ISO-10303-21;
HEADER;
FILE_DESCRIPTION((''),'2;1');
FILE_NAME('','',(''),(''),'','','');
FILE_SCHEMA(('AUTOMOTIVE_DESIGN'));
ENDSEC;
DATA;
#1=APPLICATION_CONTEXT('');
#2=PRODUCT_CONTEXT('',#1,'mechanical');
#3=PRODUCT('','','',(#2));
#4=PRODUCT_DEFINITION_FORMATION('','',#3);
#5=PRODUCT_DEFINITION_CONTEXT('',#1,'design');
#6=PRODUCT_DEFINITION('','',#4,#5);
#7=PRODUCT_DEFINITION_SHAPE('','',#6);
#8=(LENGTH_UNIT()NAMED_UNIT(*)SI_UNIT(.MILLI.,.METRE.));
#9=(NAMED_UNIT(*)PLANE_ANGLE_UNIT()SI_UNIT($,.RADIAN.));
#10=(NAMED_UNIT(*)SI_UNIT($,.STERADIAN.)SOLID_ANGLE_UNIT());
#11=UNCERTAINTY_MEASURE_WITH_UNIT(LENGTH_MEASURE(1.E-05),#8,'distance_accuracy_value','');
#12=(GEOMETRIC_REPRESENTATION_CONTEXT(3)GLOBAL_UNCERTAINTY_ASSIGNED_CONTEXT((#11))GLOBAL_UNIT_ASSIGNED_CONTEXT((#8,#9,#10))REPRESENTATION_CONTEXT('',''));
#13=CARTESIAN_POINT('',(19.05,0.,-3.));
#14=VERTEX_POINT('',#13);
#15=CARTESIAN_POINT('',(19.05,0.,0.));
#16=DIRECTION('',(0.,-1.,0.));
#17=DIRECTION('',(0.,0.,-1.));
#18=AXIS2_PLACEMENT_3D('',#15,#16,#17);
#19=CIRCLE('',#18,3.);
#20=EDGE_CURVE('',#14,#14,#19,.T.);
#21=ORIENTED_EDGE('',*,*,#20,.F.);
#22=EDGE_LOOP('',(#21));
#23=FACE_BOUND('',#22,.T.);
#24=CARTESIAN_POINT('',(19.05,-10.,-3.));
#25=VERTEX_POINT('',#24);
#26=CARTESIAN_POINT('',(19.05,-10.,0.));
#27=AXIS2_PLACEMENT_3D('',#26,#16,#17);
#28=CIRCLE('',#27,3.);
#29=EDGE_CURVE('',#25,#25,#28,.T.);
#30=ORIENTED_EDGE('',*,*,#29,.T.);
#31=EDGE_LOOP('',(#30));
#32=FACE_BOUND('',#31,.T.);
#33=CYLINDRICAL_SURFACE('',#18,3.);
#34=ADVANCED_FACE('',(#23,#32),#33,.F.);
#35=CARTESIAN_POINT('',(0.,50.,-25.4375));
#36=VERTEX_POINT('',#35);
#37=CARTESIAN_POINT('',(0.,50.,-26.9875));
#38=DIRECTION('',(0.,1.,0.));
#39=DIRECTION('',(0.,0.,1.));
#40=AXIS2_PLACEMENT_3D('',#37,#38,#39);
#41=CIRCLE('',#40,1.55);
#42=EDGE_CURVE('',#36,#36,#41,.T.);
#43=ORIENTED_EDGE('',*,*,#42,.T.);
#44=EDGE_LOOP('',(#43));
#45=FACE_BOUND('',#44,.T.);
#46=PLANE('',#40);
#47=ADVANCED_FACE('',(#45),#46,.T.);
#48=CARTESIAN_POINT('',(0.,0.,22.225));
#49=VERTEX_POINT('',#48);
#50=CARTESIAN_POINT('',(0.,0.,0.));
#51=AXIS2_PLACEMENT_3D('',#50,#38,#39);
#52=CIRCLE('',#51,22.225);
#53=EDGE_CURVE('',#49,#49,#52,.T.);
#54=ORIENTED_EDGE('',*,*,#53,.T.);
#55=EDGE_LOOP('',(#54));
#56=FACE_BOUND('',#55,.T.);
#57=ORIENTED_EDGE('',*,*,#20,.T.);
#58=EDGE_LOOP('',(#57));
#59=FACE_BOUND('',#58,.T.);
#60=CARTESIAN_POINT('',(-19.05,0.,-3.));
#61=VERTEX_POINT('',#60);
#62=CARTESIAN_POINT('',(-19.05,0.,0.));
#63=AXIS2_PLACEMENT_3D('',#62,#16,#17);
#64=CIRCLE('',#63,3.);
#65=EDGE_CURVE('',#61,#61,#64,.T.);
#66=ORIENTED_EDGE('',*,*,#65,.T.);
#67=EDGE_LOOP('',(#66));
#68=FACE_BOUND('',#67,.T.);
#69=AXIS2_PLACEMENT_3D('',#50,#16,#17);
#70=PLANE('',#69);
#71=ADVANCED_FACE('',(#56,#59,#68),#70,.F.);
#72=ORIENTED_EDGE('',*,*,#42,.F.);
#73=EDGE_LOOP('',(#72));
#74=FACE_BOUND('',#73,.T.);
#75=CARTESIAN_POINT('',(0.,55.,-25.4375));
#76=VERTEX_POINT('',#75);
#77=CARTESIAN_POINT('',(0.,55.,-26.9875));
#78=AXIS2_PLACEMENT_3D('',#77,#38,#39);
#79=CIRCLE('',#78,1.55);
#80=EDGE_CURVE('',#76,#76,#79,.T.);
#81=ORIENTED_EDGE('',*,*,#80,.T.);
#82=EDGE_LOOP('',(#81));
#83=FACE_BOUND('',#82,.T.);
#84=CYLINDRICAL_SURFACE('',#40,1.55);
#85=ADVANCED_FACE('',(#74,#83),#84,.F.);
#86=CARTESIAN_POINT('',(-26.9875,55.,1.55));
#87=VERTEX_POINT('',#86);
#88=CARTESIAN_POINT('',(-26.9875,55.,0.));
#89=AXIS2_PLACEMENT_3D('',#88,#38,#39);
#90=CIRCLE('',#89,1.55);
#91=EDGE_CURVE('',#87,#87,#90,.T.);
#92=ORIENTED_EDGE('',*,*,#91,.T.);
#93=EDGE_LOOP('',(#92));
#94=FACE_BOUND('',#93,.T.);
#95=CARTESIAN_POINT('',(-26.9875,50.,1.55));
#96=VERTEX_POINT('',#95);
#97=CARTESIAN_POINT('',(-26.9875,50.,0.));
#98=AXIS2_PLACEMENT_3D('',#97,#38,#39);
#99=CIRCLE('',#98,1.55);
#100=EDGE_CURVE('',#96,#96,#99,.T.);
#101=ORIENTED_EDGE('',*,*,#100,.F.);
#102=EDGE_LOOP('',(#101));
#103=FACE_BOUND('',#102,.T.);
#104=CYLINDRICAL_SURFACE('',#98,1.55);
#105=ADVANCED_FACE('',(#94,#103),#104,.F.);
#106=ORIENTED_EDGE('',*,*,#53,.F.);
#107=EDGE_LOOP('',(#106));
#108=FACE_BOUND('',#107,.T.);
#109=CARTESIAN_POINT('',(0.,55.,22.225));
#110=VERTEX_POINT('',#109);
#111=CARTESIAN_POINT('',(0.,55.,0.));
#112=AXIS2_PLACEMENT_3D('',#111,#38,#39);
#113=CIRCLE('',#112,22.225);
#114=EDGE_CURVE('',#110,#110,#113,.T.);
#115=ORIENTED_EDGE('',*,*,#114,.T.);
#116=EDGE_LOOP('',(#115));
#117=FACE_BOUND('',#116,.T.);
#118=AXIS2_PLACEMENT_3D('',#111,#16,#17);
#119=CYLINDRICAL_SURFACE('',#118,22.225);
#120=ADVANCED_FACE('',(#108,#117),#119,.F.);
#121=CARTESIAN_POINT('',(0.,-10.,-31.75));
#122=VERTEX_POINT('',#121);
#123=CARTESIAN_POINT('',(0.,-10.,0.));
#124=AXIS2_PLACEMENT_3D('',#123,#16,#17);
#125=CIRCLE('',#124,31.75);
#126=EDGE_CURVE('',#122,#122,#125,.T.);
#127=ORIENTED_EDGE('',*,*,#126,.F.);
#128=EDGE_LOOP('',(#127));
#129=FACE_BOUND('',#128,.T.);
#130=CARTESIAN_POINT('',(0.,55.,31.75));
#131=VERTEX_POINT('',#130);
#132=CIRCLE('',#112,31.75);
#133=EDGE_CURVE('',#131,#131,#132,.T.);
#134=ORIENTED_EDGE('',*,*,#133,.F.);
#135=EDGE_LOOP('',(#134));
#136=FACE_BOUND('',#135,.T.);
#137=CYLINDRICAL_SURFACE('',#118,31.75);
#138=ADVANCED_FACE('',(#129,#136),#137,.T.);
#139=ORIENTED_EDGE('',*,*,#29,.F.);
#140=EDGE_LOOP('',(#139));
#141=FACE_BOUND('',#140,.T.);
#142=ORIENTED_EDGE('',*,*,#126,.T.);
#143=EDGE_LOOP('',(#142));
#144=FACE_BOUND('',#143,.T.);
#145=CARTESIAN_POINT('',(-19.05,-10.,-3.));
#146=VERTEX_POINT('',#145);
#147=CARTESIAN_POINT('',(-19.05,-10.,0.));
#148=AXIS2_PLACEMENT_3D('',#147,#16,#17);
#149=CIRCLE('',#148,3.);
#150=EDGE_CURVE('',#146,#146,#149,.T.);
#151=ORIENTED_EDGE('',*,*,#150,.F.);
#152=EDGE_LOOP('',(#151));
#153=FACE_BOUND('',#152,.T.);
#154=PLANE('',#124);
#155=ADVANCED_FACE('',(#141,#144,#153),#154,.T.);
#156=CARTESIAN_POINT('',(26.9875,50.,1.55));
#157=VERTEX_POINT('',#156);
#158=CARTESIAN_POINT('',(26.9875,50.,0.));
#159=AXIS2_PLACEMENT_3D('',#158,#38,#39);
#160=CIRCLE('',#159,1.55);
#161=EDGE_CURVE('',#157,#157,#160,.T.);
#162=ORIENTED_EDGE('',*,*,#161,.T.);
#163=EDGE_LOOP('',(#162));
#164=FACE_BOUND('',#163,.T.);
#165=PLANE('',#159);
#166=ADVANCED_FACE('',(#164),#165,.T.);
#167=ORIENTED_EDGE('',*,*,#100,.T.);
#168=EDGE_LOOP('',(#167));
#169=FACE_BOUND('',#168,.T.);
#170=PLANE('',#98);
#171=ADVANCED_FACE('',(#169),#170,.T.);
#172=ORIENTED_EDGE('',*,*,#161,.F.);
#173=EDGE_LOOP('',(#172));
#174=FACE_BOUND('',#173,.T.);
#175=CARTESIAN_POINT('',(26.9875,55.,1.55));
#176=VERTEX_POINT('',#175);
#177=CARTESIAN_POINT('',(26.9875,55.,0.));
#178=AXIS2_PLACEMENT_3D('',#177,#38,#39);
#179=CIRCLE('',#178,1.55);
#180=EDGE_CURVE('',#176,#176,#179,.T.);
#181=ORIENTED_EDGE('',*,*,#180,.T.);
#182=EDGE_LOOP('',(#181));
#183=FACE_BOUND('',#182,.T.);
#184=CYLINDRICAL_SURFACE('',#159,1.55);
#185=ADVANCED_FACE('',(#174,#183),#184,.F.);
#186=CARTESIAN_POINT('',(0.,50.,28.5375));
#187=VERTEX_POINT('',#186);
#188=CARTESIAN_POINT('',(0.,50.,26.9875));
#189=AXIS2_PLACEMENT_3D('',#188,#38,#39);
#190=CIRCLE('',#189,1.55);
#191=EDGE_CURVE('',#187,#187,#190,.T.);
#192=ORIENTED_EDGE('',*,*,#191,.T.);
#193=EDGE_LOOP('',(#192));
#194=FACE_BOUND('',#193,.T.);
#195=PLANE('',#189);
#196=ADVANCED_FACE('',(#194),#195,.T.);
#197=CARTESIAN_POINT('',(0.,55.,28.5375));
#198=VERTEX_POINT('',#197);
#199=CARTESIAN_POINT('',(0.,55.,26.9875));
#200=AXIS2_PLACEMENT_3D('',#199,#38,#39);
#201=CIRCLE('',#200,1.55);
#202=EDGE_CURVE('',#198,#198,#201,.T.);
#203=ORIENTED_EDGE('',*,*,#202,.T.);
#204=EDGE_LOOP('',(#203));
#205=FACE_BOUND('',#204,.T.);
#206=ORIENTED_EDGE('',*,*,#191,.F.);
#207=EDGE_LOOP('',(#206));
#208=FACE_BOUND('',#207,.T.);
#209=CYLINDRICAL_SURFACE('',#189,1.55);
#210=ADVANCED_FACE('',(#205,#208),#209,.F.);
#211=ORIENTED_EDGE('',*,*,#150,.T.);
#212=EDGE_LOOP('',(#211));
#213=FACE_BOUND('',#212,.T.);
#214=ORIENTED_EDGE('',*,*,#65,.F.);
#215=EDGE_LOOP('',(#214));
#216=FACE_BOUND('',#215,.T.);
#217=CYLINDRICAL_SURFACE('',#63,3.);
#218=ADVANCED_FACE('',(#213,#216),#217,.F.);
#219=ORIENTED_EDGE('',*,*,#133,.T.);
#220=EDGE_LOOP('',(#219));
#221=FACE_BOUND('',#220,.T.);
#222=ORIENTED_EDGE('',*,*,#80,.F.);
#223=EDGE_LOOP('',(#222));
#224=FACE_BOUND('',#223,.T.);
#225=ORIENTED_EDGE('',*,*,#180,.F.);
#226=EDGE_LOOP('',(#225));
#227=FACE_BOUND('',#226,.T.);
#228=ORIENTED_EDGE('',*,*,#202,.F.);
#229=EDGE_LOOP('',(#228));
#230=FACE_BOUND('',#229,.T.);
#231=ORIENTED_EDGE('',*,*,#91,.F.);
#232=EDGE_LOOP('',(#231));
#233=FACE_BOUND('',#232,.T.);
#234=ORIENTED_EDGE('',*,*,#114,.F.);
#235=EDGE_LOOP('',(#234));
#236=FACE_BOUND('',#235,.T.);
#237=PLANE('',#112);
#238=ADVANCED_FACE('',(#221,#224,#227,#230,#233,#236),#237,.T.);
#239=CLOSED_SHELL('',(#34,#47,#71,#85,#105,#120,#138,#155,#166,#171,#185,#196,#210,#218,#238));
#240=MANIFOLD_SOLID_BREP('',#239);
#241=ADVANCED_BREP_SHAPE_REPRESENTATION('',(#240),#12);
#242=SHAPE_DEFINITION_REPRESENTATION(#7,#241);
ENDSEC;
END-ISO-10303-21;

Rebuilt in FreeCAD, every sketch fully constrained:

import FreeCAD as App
import Part
import Sketcher

V = App.Vector
Q = App.Units.Quantity

doc = App.newDocument("Part")
body = doc.addObject("PartDesign::Body", "Body")

sketch1 = body.newObject("Sketcher::SketchObject", "Sketch")
sketch1.AttachmentSupport = (doc.getObject("XZ_Plane"), [""])
sketch1.MapMode = "FlatFace"
sketch1.addGeometry([
    Part.Circle(V(0, 0, 0), V(0, 0, 1), 32),
    Part.Circle(V(0, 0, 0), V(0, 0, 1), 22),
], False)
sketch1.addConstraint([
    Sketcher.Constraint("Coincident", 0, 3, -1, 1),
    Sketcher.Constraint("Coincident", 1, 3, -1, 1),
    Sketcher.Constraint("Diameter", 0, Q("63.5 mm")),
    Sketcher.Constraint("Diameter", 1, Q("44.45 mm")),
])
pad1 = body.newObject("PartDesign::Pad", "Pad")
pad1.Profile = sketch1
pad1.Length = 55
pad1.Reversed = True

sketch2 = body.newObject("Sketcher::SketchObject", "Sketch001")
sketch2.AttachmentSupport = (doc.getObject("XZ_Plane"), [""])
sketch2.MapMode = "FlatFace"
sketch2.AttachmentOffset = App.Placement(V(0, 0, 10), App.Rotation())
sketch2.addGeometry(Part.Circle(V(0, 0, 0), V(0, 0, 1), 32), False)
sketch2.addConstraint([
    Sketcher.Constraint("Coincident", 0, 3, -1, 1),
    Sketcher.Constraint("Diameter", 0, Q("63.5 mm")),
])
pad2 = body.newObject("PartDesign::Pad", "Pad001")
pad2.Profile = sketch2
pad2.Length = 10
pad2.Reversed = True

sketch3 = body.newObject("Sketcher::SketchObject", "Sketch002")
sketch3.AttachmentSupport = (doc.getObject("XZ_Plane"), [""])
sketch3.MapMode = "FlatFace"
sketch3.AttachmentOffset = App.Placement(V(0, 0, -55), App.Rotation())
sketch3.addGeometry([
    Part.Circle(V(0, -27, 0), V(0, 0, 1), 1.6),
    Part.Circle(V(27, 0, 0), V(0, 0, 1), 1.6),
    Part.Circle(V(0, 27, 0), V(0, 0, 1), 1.6),
    Part.Circle(V(-27, 0, 0), V(0, 0, 1), 1.6),
], False)
sketch3.addConstraint([
    Sketcher.Constraint("Equal", 0, 1),
    Sketcher.Constraint("Equal", 1, 2),
    Sketcher.Constraint("Equal", 2, 3),
    Sketcher.Constraint("Symmetric", 0, 3, 2, 3, -1, 1),
    Sketcher.Constraint("Symmetric", 1, 3, 3, 3, -1, 1),
    Sketcher.Constraint("PointOnObject", 0, 3, -2),
    Sketcher.Constraint("PointOnObject", 1, 3, -1),
    Sketcher.Constraint("Diameter", 0, Q("3.1 mm")),
    Sketcher.Constraint("DistanceY", 0, 3, 2, 3, Q("53.975 mm")),
    Sketcher.Constraint("DistanceX", 3, 3, 1, 3, Q("53.975 mm")),
])
pocket1 = body.newObject("PartDesign::Pocket", "Pocket")
pocket1.Profile = sketch3
pocket1.Length = 5
pocket1.Reversed = True

sketch4 = body.newObject("Sketcher::SketchObject", "Sketch003")
sketch4.AttachmentSupport = (doc.getObject("XZ_Plane"), [""])
sketch4.MapMode = "FlatFace"
sketch4.AttachmentOffset = App.Placement(V(0, 0, 10), App.Rotation())
sketch4.addGeometry([
    Part.Circle(V(-19.1, 0, 0), V(0, 0, 1), 3),
    Part.Circle(V(19.1, 0, 0), V(0, 0, 1), 3),
], False)
sketch4.addConstraint([
    Sketcher.Constraint("Equal", 0, 1),
    Sketcher.Constraint("Symmetric", 0, 3, 1, 3, -1, 1),
    Sketcher.Constraint("PointOnObject", 0, 3, -1),
    Sketcher.Constraint("Diameter", 0, Q("6 mm")),
    Sketcher.Constraint("DistanceX", 0, 3, 1, 3, Q("38.1 mm")),
])
pocket2 = body.newObject("PartDesign::Pocket", "Pocket001")
pocket2.Profile = sketch4
pocket2.Length = 10

doc.recompute()
